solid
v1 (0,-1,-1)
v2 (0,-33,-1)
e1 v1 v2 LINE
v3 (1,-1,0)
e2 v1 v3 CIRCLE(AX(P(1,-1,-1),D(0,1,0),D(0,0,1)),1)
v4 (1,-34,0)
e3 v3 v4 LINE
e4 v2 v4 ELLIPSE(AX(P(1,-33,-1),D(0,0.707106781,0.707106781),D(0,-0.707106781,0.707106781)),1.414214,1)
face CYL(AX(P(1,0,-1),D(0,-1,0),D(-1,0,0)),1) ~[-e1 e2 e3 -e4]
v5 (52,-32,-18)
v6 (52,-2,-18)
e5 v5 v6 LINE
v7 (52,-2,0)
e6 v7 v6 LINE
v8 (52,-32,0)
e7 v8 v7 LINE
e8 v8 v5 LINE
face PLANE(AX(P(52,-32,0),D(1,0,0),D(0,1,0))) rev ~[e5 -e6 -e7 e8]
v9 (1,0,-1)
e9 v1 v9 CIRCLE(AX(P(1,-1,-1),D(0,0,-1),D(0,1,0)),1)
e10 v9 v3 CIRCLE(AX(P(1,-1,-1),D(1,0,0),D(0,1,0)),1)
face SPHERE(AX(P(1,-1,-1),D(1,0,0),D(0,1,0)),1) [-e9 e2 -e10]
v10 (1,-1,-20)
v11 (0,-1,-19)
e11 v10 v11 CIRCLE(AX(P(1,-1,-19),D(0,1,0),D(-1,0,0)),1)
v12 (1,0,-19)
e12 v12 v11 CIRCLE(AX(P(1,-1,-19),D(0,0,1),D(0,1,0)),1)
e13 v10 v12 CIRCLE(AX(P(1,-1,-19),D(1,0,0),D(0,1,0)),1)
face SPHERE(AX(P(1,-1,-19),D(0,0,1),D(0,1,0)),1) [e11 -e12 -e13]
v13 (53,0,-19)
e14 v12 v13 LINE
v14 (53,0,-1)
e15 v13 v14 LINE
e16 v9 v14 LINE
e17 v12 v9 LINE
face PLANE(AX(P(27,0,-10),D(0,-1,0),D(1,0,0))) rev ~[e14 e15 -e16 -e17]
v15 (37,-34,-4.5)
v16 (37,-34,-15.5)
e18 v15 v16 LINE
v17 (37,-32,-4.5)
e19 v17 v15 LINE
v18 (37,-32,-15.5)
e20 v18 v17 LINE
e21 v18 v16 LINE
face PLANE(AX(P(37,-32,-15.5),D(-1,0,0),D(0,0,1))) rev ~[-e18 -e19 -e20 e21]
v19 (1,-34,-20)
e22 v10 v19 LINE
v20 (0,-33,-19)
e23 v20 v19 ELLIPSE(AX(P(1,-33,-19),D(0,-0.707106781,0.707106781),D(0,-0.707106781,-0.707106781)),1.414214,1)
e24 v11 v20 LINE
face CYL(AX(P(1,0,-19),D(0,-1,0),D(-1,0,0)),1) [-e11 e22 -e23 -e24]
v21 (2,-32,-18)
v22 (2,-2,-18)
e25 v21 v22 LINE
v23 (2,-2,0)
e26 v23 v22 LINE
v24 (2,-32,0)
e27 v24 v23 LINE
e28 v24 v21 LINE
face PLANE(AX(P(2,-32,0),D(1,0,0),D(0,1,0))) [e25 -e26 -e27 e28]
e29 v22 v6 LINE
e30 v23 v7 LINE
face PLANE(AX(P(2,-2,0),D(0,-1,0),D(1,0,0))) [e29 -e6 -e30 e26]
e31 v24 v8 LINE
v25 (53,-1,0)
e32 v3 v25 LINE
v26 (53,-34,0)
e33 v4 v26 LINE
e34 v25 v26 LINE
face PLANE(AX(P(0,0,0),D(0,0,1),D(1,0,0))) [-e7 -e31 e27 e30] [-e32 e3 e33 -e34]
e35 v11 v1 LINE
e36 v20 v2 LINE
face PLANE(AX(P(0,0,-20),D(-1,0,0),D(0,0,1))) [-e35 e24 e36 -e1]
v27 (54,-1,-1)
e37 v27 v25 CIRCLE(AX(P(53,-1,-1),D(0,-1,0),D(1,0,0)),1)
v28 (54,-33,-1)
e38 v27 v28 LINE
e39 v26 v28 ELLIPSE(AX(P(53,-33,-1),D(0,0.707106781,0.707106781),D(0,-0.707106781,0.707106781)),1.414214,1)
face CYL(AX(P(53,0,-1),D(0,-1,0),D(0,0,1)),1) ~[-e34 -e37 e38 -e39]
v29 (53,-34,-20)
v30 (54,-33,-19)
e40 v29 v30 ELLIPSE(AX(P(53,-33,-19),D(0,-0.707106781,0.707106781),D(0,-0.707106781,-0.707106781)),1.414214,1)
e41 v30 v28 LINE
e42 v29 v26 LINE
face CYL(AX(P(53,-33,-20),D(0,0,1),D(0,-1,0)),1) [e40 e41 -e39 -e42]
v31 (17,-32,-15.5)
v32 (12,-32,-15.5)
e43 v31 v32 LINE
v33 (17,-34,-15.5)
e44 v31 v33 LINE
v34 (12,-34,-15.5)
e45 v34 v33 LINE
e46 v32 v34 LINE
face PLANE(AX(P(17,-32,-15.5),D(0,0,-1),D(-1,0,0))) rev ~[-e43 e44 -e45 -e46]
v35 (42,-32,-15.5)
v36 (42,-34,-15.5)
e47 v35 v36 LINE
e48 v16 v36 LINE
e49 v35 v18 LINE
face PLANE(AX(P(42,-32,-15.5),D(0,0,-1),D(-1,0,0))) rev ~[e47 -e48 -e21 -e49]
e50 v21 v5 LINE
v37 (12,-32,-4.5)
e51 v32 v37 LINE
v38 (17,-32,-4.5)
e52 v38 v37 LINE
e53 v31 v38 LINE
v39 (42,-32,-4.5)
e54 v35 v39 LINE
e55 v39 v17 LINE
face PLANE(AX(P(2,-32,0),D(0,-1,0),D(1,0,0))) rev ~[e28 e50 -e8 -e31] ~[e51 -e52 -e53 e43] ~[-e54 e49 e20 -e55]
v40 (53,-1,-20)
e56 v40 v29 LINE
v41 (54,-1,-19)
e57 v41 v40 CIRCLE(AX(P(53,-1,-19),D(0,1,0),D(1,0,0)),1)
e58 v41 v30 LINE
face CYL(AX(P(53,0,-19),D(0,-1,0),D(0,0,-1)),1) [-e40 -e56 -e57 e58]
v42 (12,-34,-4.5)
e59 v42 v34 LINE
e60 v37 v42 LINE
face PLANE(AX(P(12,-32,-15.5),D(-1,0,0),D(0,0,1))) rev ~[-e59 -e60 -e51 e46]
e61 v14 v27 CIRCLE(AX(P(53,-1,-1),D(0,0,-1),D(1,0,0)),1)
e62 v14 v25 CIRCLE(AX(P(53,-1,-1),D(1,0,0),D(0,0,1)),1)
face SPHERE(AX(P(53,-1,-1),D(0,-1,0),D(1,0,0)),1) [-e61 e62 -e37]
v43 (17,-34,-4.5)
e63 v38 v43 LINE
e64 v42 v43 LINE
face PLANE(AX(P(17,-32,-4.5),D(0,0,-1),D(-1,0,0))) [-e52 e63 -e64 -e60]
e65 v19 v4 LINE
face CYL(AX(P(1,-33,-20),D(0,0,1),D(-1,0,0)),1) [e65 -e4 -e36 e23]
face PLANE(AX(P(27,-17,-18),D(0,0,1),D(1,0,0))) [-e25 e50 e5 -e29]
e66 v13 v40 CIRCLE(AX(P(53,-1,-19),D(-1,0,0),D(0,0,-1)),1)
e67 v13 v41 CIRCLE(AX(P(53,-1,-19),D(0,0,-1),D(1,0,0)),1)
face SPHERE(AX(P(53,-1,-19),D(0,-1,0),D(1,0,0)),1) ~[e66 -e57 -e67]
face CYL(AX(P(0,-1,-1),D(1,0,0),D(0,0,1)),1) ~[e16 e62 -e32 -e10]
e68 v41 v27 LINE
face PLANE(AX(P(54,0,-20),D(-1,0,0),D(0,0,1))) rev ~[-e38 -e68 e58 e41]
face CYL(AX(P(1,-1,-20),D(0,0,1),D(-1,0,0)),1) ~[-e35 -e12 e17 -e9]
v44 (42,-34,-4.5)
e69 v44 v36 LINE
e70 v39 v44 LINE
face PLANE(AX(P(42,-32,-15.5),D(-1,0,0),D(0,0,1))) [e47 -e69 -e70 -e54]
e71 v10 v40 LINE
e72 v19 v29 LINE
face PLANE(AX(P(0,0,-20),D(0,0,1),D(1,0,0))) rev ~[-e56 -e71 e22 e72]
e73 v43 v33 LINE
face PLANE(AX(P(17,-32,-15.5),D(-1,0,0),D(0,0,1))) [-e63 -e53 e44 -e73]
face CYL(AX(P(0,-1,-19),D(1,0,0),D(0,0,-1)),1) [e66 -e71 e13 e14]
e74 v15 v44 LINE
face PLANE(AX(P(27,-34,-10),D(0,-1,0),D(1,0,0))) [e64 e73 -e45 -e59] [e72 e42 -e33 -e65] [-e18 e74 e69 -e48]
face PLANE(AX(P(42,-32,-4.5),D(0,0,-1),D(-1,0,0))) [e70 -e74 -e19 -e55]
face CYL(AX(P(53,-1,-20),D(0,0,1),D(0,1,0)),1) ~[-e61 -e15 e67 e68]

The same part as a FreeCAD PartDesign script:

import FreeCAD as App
import Part
import Sketcher
from FreeCAD import Vector
Q = App.Units.Quantity


def edges_at(feature, points):
    """Names of the edges that pass closest to the given points."""
    edges = feature.Shape.Edges
    near = lambda p: min(range(len(edges)), key=lambda i: edges[i].distToShape(Part.Vertex(*p))[0])
    return sorted({f"Edge{near(p) + 1}" for p in points})

doc = App.newDocument("Part")
body = doc.addObject("PartDesign::Body", "Body")

# Sketch on XZ plane
sketch1 = doc.addObject("Sketcher::SketchObject", "Sketch")
body.addObject(sketch1)
sketch1.AttachmentSupport = (doc.XZ_Plane, [""])
sketch1.MapMode = "FlatFace"
sketch1.addGeometry([
    Part.LineSegment(Vector(0, 0, 0), Vector(0, -20, 0)),
    Part.LineSegment(Vector(0, -20, 0), Vector(54, -20, 0)),
    Part.LineSegment(Vector(54, -20, 0), Vector(54, 0, 0)),
    Part.LineSegment(Vector(54, 0, 0), Vector(0, 0, 0)),
], False)
sketch1.addConstraint([
    Sketcher.Constraint("Coincident", 0, 2, 1, 1),
    Sketcher.Constraint("Coincident", 1, 2, 2, 1),
    Sketcher.Constraint("Coincident", 2, 2, 3, 1),
    Sketcher.Constraint("Coincident", 3, 2, 0, 1),
    Sketcher.Constraint("Vertical", 0),
    Sketcher.Constraint("Horizontal", 1),
    Sketcher.Constraint("Vertical", 2),
    Sketcher.Constraint("Horizontal", 3),
    Sketcher.Constraint("Coincident", 3, 2, -1, 1),
    Sketcher.Constraint("DistanceX", 1, 1, 1, 2, Q("54 mm")),
    Sketcher.Constraint("DistanceY", 0, 2, 0, 1, Q("20 mm")),
])
pad1 = doc.addObject("PartDesign::Pad", "Pad")
body.addObject(pad1)
pad1.Profile = sketch1
pad1.Length = 34

# Sketch on XY plane
sketch2 = doc.addObject("Sketcher::SketchObject", "Sketch001")
body.addObject(sketch2)
sketch2.AttachmentSupport = (doc.XY_Plane, [""])
sketch2.MapMode = "FlatFace"
sketch2.addGeometry([
    Part.LineSegment(Vector(2, -2, 0), Vector(2, -32, 0)),
    Part.LineSegment(Vector(2, -32, 0), Vector(52, -32, 0)),
    Part.LineSegment(Vector(52, -32, 0), Vector(52, -2, 0)),
    Part.LineSegment(Vector(52, -2, 0), Vector(2, -2, 0)),
], False)
sketch2.addConstraint([
    Sketcher.Constraint("Coincident", 0, 2, 1, 1),
    Sketcher.Constraint("Coincident", 1, 2, 2, 1),
    Sketcher.Constraint("Coincident", 2, 2, 3, 1),
    Sketcher.Constraint("Coincident", 3, 2, 0, 1),
    Sketcher.Constraint("Vertical", 0),
    Sketcher.Constraint("Horizontal", 1),
    Sketcher.Constraint("Vertical", 2),
    Sketcher.Constraint("Horizontal", 3),
    Sketcher.Constraint("DistanceX", 1, 1, 1, 2, Q("50 mm")),
    Sketcher.Constraint("DistanceY", 0, 2, 0, 1, Q("30 mm")),
    Sketcher.Constraint("DistanceX", -1, 1, 0, 2, Q("2 mm")),
    Sketcher.Constraint("DistanceY", 0, 2, -1, 1, Q("32 mm")),
])
pocket1 = doc.addObject("PartDesign::Pocket", "Pocket")
body.addObject(pocket1)
pocket1.Profile = sketch2
pocket1.Length = 18

# Sketch on XZ plane
sketch3 = doc.addObject("Sketcher::SketchObject", "Sketch002")
body.addObject(sketch3)
sketch3.AttachmentSupport = (doc.XZ_Plane, [""])
sketch3.MapMode = "FlatFace"
sketch3.AttachmentOffset = App.Placement(Vector(0, 0, 32), App.Rotation())
sketch3.addGeometry([
    Part.LineSegment(Vector(17, -4, 0), Vector(17, -16, 0)),  # 0
    Part.LineSegment(Vector(17, -16, 0), Vector(12, -16, 0)),  # 1
    Part.LineSegment(Vector(12, -16, 0), Vector(12, -4, 0)),  # 2
    Part.LineSegment(Vector(12, -4, 0), Vector(17, -4, 0)),  # 3
    Part.LineSegment(Vector(42, -4, 0), Vector(42, -15, 0)),  # 4
    Part.LineSegment(Vector(42, -15, 0), Vector(37, -15, 0)),  # 5
    Part.LineSegment(Vector(37, -15, 0), Vector(37, -4, 0)),  # 6
    Part.LineSegment(Vector(37, -4, 0), Vector(42, -4, 0)),  # 7
], False)
sketch3.addConstraint([
    Sketcher.Constraint("Coincident", 0, 2, 1, 1),
    Sketcher.Constraint("Coincident", 1, 2, 2, 1),
    Sketcher.Constraint("Coincident", 2, 2, 3, 1),
    Sketcher.Constraint("Coincident", 3, 2, 0, 1),
    Sketcher.Constraint("Coincident", 4, 2, 5, 1),
    Sketcher.Constraint("Coincident", 5, 2, 6, 1),
    Sketcher.Constraint("Coincident", 6, 2, 7, 1),
    Sketcher.Constraint("Coincident", 7, 2, 4, 1),
    Sketcher.Constraint("Vertical", 0),
    Sketcher.Constraint("Horizontal", 1),
    Sketcher.Constraint("Vertical", 2),
    Sketcher.Constraint("Horizontal", 3),
    Sketcher.Constraint("Vertical", 4),
    Sketcher.Constraint("Horizontal", 5),
    Sketcher.Constraint("Vertical", 6),
    Sketcher.Constraint("Horizontal", 7),
    Sketcher.Constraint("Horizontal", 1, 2, 4, 2),
    Sketcher.Constraint("Horizontal", 3, 2, 6, 2),
    Sketcher.Constraint("Equal", 3, 5),
    Sketcher.Constraint("DistanceX", 1, 2, 1, 1, Q("5 mm")),
    Sketcher.Constraint("DistanceY", 0, 2, 0, 1, Q("11 mm")),
    Sketcher.Constraint("DistanceX", -1, 1, 0, 2, Q("17 mm")),
    Sketcher.Constraint("DistanceX", -1, 1, 4, 2, Q("42 mm")),
    Sketcher.Constraint("DistanceY", 0, 2, -1, 1, Q("15.5 mm")),
])
pocket2 = doc.addObject("PartDesign::Pocket", "Pocket001")
body.addObject(pocket2)
pocket2.Profile = sketch3
pocket2.Length = 5
pocket2.Reversed = True
doc.recompute()

fillet = doc.addObject("PartDesign::Fillet", "Fillet")
body.addObject(fillet)
fillet.Base = (pocket2, edges_at(pocket2, [
    (54, -17, -20),
    (54, -17, 0),
    (54, 0, -10),
    (54, -34, -10),
    (27, 0, 0),
    (0, 0, -10),
    (27, 0, -20),
    (0, -17, 0),
    (0, -17, -20),
    (0, -34, -10),
]))
fillet.Radius = 1

doc.recompute()
